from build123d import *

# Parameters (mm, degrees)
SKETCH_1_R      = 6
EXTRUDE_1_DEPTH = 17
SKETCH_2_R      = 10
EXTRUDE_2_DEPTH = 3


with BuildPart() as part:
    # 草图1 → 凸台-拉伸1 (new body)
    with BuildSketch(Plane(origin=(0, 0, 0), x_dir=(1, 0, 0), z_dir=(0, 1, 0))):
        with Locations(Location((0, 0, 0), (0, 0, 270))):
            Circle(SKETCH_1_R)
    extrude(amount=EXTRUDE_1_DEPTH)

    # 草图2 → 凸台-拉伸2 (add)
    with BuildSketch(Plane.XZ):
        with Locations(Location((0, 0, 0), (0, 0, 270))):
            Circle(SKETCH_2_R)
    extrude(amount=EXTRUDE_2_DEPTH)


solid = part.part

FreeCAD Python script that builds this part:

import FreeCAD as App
import Part
import Sketcher
from FreeCAD import Vector
Q = App.Units.Quantity

doc = App.newDocument("Part")
params = doc.addObject("Spreadsheet::Sheet", "Params")
for row, (alias, value) in enumerate([
    ("sketch1_diameter", "12 mm"),
    ("pad1_length", "17 mm"),
    ("sketch2_diameter", "20 mm"),
    ("pad2_length", "3 mm"),
], start=1):
    params.set(f"A{row}", alias)
    params.set(f"B{row}", "=" + value)
    params.setAlias(f"B{row}", alias)

body = doc.addObject("PartDesign::Body", "Body")

sketch1 = doc.addObject("Sketcher::SketchObject", "Sketch")
body.addObject(sketch1)
sketch1.AttachmentSupport = (doc.XZ_Plane, [""])
sketch1.MapMode = "FlatFace"
sketch1.addGeometry(Part.Circle(Vector(0, 0, 0), Vector(0, 0, 1), 6), False)
sketch1.addConstraint([
    Sketcher.Constraint("Coincident", 0, 3, -1, 1),
    Sketcher.Constraint("Diameter", 0, Q("12 mm")),
])
sketch1.setExpression("Constraints[1]", "Params.sketch1_diameter")
pad1 = doc.addObject("PartDesign::Pad", "Pad")
body.addObject(pad1)
pad1.Profile = sketch1
pad1.setExpression("Length", "Params.pad1_length")
pad1.Reversed = True

sketch2 = doc.addObject("Sketcher::SketchObject", "Sketch001")
body.addObject(sketch2)
sketch2.AttachmentSupport = (doc.XZ_Plane, [""])
sketch2.MapMode = "FlatFace"
sketch2.addGeometry(Part.Circle(Vector(0, 0, 0), Vector(0, 0, 1), 10), False)
sketch2.addConstraint([
    Sketcher.Constraint("Coincident", 0, 3, -1, 1),
    Sketcher.Constraint("Diameter", 0, Q("20 mm")),
])
sketch2.setExpression("Constraints[1]", "Params.sketch2_diameter")
pad2 = doc.addObject("PartDesign::Pad", "Pad001")
body.addObject(pad2)
pad2.Profile = sketch2
pad2.setExpression("Length", "Params.pad2_length")

doc.recompute()
